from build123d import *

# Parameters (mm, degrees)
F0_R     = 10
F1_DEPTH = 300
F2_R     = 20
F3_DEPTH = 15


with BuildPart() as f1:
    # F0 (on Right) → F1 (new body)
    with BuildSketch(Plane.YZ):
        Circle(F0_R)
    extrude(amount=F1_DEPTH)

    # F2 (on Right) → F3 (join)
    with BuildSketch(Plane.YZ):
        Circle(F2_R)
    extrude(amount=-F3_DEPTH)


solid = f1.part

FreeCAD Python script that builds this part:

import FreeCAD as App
import Part
import Sketcher
from FreeCAD import Vector

doc = App.newDocument("Part")
body = doc.addObject("PartDesign::Body", "Body")

sketch1 = body.newObject("Sketcher::SketchObject", "Sketch")
sketch1.AttachmentSupport = (doc.getObject("YZ_Plane"), [""])
sketch1.MapMode = "FlatFace"
sketch1.addGeometry(Part.Circle(Vector(0, 0, 0), Vector(0, 0, 1), 10), False)
sketch1.addConstraint(Sketcher.Constraint("Coincident", 0, 3, -1, 1))
sketch1.addConstraint(Sketcher.Constraint("Diameter", 0, 20.0))
pad1 = body.newObject("PartDesign::Pad", "Pad")
pad1.Profile = sketch1
pad1.Length = 300

sketch2 = body.newObject("Sketcher::SketchObject", "Sketch001")
sketch2.AttachmentSupport = (doc.getObject("YZ_Plane"), [""])
sketch2.MapMode = "FlatFace"
sketch2.addGeometry(Part.Circle(Vector(0, 0, 0), Vector(0, 0, 1), 20), False)
sketch2.addConstraint(Sketcher.Constraint("Coincident", 0, 3, -1, 1))
sketch2.addConstraint(Sketcher.Constraint("Diameter", 0, 40.0))
pad2 = body.newObject("PartDesign::Pad", "Pad001")
pad2.Profile = sketch2
pad2.Length = 15
pad2.Reversed = True

doc.recompute()
